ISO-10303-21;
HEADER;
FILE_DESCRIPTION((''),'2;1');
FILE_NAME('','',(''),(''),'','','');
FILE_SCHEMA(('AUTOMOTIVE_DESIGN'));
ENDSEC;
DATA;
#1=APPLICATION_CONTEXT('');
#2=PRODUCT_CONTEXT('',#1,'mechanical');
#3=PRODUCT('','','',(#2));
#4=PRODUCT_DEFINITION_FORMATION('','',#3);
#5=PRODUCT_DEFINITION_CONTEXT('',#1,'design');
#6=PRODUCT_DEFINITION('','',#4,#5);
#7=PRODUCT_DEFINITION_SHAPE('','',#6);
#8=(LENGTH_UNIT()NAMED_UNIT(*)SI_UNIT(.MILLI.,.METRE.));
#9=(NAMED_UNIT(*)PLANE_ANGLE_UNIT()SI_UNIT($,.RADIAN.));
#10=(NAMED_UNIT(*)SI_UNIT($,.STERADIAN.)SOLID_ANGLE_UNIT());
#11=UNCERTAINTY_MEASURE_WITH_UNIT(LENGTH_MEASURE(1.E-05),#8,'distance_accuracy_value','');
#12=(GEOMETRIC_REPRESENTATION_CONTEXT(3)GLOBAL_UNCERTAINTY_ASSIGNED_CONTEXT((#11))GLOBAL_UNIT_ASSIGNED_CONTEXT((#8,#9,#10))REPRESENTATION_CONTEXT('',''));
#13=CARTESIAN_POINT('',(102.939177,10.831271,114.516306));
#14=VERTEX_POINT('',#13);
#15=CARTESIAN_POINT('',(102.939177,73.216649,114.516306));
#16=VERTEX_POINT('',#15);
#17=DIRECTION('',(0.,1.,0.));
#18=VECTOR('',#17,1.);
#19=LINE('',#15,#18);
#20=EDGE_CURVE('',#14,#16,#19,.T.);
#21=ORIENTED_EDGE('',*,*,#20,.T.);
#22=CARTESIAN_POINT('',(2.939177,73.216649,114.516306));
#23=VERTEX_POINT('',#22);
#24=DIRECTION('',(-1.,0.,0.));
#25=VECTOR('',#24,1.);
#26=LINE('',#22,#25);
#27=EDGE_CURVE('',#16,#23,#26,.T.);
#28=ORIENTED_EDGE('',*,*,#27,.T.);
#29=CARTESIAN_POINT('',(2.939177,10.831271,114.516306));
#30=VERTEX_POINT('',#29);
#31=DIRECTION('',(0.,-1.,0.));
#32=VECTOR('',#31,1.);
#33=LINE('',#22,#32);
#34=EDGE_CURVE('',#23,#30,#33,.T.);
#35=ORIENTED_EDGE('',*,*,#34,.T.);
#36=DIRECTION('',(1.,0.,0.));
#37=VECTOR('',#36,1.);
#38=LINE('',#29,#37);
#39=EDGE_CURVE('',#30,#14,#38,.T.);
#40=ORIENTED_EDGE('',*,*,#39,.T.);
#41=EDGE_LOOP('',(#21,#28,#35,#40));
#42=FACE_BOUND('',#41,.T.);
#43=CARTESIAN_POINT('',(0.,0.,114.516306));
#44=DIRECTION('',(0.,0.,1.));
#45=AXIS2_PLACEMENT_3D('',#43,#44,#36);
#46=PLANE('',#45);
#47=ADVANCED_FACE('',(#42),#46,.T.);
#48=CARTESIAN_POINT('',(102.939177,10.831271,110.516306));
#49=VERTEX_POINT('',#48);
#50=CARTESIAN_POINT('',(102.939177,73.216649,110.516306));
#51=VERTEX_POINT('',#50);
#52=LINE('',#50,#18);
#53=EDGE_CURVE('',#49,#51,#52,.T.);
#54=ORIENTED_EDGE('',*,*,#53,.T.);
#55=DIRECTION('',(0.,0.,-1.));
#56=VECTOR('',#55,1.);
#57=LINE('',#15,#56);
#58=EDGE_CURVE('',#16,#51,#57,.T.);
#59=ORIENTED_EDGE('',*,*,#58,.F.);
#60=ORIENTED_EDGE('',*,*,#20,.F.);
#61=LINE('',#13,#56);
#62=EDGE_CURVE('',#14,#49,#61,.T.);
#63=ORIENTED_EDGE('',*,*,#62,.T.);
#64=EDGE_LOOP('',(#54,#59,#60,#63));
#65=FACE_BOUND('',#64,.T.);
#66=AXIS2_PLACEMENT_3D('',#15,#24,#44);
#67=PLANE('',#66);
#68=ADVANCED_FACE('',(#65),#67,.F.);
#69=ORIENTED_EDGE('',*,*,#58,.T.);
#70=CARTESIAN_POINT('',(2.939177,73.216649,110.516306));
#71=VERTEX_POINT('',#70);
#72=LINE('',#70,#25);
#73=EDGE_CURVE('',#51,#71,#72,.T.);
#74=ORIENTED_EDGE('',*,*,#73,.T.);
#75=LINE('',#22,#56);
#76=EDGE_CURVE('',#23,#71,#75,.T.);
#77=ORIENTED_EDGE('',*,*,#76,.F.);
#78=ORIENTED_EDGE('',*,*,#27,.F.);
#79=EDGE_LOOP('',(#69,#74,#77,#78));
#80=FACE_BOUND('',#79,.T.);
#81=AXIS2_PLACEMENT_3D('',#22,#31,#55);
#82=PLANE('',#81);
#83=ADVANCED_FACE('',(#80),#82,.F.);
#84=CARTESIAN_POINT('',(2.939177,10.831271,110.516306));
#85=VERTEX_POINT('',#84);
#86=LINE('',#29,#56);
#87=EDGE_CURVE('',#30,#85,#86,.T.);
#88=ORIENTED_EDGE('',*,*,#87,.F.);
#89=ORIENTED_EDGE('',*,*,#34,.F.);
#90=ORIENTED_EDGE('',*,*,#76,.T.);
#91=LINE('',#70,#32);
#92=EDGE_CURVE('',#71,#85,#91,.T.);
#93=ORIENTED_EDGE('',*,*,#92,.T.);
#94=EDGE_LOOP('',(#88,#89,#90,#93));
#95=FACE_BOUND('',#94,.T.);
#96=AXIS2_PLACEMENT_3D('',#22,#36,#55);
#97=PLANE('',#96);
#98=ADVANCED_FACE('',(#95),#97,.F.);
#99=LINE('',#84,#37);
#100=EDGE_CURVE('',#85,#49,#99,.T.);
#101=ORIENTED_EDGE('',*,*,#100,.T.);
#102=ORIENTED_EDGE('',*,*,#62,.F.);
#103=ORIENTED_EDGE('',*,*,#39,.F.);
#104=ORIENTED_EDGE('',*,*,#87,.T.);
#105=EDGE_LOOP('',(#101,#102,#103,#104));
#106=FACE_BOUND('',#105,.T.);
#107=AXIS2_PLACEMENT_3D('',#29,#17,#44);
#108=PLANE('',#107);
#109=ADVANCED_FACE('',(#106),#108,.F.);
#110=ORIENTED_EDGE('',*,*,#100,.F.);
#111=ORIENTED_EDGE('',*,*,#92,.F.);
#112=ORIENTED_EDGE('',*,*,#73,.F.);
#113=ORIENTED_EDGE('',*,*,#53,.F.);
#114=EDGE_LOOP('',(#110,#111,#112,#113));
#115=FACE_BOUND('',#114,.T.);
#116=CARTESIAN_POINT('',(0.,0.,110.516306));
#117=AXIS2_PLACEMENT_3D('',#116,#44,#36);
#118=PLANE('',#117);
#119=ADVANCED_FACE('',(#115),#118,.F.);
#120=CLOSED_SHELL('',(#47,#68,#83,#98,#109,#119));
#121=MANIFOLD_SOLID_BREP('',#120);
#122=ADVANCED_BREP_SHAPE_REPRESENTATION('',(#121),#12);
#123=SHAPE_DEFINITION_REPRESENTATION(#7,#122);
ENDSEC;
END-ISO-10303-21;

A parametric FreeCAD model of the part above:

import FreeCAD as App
import Part
import Sketcher


def add_polygon(sketch, points):
    """Adds a closed chain of lines whose ends are joined by coincident constraints."""
    first, n = sketch.GeometryCount, len(points)
    for a, b in zip(points, points[1:] + points[:1]):
        sketch.addGeometry(Part.LineSegment(App.Vector(*a, 0), App.Vector(*b, 0)), False)
    for i in range(n):
        sketch.addConstraint(Sketcher.Constraint("Coincident", first + i, 2, first + (i + 1) % n, 1))

doc = App.newDocument("Part")
body = doc.addObject("PartDesign::Body", "Body")

sketch1 = body.newObject("Sketcher::SketchObject", "Sketch")
sketch1.AttachmentSupport = (doc.getObject("XY_Plane"), [""])
sketch1.MapMode = "FlatFace"
sketch1.AttachmentOffset = App.Placement(App.Vector(0, 0, 110.516306), App.Rotation())
add_polygon(sketch1, [(3, 73), (3, 11), (103, 11), (103, 73)])
sketch1.addConstraint([
    Sketcher.Constraint("Vertical", 0),
    Sketcher.Constraint("Horizontal", 1),
    Sketcher.Constraint("Vertical", 2),
    Sketcher.Constraint("Horizontal", 3),
    Sketcher.Constraint("DistanceX", 1, 1, 1, 2, 100.0),
    Sketcher.Constraint("DistanceY", 0, 2, 0, 1, 62.385379),
    Sketcher.Constraint("DistanceY", -1, 1, 0, 2, 10.831271),
    Sketcher.Constraint("DistanceX", -1, 1, 0, 2, 2.939177),
])
pad1 = body.newObject("PartDesign::Pad", "Pad")
pad1.Profile = sketch1
pad1.Length = 4

doc.recompute()
